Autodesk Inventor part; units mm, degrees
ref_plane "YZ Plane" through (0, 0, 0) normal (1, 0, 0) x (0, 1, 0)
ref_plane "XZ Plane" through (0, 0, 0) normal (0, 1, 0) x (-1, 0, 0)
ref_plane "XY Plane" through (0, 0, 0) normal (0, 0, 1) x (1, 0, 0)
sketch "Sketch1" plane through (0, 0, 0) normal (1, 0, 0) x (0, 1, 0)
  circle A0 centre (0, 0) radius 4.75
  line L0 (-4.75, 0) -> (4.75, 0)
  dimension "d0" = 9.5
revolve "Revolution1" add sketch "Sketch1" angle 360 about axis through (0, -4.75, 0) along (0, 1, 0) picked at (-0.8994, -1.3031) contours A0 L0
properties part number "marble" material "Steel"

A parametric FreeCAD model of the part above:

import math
import FreeCAD as App
import Part
import Sketcher

doc = App.newDocument("Part")
params = doc.addObject("Spreadsheet::Sheet", "Params")
for row, (alias, value) in enumerate([
    ("sketch1_radius", "4.75 mm"),
    ("revolution_angle", "360 deg"),
], start=1):
    params.set(f"A{row}", alias)
    params.set(f"B{row}", "=" + value)
    params.setAlias(f"B{row}", alias)

body = doc.addObject("PartDesign::Body", "Body")

sketch1 = body.newObject("Sketcher::SketchObject", "Sketch")
sketch1.AttachmentSupport = (doc.getObject("YZ_Plane"), [""])
sketch1.MapMode = "FlatFace"
sketch1.addGeometry([
    Part.ArcOfCircle(Part.Circle(App.Vector(0, 0, 0), App.Vector(0, 0, 1), 4.75), math.radians(180), math.radians(360)),
    Part.LineSegment(App.Vector(4.75, 0, 0), App.Vector(-4.75, 0, 0)),
], False)
sketch1.addConstraint([
    Sketcher.Constraint("Coincident", 0, 1, 1, 2),
    Sketcher.Constraint("Coincident", 1, 1, 0, 2),
    Sketcher.Constraint("Horizontal", 1),
    Sketcher.Constraint("Coincident", 0, 3, -1, 1),
    Sketcher.Constraint("PointOnObject", 0, 1, -1),
    Sketcher.Constraint("Radius", 0, 4.75),
])
sketch1.setExpression("Constraints[5]", "Params.sketch1_radius")
revolution = body.newObject("PartDesign::Revolution", "Revolution")
revolution.Profile = sketch1
revolution.ReferenceAxis = (sketch1, ["H_Axis"])
revolution.setExpression("Angle", "Params.revolution_angle")

doc.recompute()
